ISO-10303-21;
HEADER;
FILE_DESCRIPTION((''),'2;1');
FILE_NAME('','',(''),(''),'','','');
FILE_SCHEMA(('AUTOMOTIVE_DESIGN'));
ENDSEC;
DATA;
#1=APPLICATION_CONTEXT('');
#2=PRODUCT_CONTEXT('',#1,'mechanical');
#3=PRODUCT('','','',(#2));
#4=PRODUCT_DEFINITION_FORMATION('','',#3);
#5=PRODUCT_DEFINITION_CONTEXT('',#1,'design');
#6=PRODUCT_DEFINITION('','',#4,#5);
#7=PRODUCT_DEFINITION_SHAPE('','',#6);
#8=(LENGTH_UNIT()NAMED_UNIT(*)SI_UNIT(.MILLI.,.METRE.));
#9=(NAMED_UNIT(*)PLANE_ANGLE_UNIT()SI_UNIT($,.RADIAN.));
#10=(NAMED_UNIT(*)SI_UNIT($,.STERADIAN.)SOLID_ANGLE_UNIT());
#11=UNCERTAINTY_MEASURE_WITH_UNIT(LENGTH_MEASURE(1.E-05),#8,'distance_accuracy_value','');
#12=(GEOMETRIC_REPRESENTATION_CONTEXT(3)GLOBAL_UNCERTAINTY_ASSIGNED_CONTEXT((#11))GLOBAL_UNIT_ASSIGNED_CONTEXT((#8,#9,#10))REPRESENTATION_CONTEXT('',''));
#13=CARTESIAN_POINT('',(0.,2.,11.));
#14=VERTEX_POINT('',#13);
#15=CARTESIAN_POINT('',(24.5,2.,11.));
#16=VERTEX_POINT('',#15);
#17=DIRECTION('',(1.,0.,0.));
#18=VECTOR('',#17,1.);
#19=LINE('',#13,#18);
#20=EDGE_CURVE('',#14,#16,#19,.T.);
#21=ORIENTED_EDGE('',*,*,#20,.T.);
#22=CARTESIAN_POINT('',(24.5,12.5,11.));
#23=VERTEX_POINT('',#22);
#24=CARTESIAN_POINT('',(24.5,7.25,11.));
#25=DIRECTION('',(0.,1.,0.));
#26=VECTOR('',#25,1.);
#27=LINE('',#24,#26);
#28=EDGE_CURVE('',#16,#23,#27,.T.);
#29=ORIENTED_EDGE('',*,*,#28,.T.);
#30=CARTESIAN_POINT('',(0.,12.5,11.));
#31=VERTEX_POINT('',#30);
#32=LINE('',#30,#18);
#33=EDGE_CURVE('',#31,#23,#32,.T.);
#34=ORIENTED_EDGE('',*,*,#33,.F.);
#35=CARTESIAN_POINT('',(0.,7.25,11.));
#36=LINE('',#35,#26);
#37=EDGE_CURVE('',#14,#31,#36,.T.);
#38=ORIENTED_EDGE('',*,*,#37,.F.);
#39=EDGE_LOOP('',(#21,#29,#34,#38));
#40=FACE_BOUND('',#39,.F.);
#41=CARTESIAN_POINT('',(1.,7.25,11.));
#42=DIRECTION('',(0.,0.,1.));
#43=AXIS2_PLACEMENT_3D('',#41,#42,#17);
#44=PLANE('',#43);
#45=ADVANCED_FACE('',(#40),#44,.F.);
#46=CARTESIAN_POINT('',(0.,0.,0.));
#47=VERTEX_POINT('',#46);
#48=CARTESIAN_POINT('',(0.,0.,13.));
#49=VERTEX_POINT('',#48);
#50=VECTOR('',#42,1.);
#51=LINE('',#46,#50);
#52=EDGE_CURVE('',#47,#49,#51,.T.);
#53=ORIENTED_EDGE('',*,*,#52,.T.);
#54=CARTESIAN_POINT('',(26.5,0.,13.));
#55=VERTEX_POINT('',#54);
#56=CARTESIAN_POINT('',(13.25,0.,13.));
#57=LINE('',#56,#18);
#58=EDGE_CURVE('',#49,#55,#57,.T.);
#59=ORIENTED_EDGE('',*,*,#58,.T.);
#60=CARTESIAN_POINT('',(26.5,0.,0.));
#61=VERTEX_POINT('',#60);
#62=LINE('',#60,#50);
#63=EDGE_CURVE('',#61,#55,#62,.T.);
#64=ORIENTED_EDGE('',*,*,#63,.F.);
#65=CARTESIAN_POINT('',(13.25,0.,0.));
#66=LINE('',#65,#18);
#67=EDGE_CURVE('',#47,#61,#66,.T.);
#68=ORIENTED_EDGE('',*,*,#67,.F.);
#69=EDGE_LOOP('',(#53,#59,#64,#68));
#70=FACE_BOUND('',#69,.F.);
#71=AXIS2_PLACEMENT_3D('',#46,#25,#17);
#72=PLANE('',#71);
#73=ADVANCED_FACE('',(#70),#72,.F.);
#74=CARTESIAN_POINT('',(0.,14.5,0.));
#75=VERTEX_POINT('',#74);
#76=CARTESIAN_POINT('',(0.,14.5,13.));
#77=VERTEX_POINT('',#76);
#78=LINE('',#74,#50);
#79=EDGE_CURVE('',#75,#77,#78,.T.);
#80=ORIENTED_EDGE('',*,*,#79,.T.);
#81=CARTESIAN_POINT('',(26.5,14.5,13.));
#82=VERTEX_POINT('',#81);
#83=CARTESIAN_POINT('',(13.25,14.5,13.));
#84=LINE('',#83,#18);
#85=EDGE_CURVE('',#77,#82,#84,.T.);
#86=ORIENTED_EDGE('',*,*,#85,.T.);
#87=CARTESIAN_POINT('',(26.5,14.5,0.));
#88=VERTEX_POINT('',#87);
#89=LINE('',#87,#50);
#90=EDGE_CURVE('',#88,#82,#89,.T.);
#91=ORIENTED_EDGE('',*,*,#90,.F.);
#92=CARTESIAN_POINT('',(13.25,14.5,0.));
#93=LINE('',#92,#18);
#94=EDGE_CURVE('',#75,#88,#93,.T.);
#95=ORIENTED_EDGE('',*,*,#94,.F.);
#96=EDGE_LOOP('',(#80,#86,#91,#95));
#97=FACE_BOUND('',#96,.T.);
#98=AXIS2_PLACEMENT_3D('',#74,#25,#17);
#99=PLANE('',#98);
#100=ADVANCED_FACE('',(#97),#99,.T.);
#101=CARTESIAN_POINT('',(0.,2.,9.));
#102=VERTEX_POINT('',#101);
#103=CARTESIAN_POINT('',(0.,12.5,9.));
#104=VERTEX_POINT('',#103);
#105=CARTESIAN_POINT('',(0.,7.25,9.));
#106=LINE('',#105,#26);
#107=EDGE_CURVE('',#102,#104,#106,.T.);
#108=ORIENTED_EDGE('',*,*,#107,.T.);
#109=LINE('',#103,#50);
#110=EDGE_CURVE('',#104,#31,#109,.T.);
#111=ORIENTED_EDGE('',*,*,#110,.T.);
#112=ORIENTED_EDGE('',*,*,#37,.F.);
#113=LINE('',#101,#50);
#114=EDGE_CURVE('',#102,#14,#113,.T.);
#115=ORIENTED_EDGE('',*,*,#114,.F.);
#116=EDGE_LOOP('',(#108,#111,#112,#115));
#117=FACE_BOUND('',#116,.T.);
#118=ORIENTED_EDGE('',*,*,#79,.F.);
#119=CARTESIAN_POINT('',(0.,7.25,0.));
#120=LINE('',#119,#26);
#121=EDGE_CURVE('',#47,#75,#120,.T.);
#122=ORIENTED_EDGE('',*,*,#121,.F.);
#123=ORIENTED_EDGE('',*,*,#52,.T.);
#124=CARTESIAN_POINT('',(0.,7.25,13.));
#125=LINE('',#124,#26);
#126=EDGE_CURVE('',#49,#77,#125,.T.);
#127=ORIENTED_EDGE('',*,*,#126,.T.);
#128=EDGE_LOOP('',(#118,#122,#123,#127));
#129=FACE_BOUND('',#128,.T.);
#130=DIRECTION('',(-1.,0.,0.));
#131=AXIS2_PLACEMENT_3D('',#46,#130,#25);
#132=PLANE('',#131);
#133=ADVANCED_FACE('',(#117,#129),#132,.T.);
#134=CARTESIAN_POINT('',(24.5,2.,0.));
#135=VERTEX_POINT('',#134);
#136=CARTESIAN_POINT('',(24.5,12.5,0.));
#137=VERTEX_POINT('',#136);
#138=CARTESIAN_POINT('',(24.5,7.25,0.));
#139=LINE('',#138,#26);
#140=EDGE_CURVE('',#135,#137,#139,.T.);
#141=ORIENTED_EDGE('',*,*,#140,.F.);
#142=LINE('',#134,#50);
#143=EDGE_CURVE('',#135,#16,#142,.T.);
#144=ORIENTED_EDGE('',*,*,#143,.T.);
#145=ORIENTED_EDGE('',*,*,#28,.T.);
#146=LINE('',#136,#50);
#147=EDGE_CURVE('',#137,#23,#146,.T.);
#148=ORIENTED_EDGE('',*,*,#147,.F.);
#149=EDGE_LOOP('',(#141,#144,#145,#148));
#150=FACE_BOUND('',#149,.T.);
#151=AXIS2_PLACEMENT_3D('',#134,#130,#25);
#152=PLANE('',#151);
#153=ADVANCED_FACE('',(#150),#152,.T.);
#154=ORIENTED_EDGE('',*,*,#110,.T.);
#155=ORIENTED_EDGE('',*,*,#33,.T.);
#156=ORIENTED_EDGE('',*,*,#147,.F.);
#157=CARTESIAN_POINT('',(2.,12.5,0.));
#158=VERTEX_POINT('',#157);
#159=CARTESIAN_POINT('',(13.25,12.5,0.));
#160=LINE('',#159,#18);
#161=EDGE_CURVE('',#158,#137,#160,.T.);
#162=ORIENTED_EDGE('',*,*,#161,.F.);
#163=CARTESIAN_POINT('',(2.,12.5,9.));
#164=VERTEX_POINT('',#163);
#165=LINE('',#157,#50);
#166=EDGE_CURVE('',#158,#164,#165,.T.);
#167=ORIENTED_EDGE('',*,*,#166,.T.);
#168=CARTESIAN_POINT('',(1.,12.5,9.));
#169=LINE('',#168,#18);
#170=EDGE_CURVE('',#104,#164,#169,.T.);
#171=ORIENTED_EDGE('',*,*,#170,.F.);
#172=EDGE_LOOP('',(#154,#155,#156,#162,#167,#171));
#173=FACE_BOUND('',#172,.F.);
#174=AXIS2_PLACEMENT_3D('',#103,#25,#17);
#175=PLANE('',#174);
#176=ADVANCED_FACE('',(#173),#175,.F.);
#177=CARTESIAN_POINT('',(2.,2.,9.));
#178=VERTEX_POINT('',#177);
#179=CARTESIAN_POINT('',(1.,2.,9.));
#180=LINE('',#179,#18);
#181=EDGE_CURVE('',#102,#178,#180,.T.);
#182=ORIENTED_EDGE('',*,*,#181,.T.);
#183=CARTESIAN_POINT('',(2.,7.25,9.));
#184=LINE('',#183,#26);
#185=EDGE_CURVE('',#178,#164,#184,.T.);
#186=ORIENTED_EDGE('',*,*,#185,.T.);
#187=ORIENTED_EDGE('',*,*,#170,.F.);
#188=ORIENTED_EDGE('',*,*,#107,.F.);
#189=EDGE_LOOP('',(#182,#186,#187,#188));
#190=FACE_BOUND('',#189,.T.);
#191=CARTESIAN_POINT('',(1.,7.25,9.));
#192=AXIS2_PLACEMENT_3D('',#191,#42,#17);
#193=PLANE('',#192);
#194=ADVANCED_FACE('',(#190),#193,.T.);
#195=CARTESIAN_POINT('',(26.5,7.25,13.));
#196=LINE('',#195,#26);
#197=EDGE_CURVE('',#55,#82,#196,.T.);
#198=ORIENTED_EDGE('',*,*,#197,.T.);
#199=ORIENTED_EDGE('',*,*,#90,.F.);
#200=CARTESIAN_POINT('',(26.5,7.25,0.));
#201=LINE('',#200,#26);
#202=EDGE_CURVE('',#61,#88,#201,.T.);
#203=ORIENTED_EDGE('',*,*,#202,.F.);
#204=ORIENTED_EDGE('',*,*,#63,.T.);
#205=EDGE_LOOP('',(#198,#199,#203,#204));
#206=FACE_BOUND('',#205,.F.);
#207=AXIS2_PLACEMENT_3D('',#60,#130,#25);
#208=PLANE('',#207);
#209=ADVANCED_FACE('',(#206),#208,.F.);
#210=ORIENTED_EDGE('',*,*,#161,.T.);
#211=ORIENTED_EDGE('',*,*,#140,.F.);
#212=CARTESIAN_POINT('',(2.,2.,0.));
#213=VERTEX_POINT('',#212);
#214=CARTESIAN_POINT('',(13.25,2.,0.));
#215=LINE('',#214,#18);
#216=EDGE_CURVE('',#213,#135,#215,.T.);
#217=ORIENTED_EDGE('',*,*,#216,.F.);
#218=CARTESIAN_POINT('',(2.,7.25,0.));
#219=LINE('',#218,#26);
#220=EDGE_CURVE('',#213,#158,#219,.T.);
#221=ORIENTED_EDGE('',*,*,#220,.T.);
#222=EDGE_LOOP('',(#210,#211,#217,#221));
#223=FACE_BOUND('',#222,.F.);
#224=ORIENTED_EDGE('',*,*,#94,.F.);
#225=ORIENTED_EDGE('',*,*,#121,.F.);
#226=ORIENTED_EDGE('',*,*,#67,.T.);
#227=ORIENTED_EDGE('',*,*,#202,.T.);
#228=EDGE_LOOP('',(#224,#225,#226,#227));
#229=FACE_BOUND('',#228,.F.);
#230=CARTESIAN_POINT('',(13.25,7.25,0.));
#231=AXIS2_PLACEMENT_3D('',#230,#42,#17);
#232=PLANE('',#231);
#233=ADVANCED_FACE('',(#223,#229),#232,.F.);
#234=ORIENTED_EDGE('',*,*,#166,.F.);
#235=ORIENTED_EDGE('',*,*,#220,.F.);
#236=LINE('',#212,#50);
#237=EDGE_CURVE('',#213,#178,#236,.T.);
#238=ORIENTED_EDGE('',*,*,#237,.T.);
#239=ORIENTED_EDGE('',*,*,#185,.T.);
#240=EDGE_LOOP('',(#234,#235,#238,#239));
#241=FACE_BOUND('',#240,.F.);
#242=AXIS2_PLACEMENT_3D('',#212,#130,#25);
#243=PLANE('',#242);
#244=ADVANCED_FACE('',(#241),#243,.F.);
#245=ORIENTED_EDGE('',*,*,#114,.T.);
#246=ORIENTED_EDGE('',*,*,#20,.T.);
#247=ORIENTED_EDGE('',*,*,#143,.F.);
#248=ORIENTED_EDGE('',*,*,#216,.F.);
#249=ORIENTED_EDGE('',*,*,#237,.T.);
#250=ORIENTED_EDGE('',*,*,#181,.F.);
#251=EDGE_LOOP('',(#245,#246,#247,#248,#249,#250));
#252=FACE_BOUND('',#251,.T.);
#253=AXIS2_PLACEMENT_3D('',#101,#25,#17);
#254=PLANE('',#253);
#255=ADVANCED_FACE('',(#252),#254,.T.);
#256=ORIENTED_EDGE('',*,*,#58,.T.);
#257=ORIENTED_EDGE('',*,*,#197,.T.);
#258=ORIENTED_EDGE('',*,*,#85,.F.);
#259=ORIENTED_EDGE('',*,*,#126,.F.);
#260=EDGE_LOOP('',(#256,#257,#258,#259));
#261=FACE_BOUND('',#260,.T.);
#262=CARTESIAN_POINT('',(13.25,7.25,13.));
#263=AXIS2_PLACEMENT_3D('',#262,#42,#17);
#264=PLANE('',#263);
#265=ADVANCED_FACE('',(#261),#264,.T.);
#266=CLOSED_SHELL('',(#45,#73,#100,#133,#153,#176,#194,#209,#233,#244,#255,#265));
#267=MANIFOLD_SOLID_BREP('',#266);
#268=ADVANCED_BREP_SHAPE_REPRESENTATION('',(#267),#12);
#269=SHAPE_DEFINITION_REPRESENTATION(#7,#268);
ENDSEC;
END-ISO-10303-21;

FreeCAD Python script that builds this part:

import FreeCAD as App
import Part
import Sketcher
from FreeCAD import Vector
Q = App.Units.Quantity


def add_polygon(sketch, points):
    """Adds a closed chain of lines whose ends are joined by coincident constraints."""
    first, n = sketch.GeometryCount, len(points)
    for a, b in zip(points, points[1:] + points[:1]):
        sketch.addGeometry(Part.LineSegment(App.Vector(*a, 0), App.Vector(*b, 0)), False)
    for i in range(n):
        sketch.addConstraint(Sketcher.Constraint("Coincident", first + i, 2, first + (i + 1) % n, 1))

doc = App.newDocument("Part")
params = doc.addObject("Spreadsheet::Sheet", "Params")
for row, (alias, value) in enumerate([
    ("sketch1_width", "2 mm"),
    ("sketch1_height", "10.5 mm"),
    ("pad1_length", "2 mm"),
    ("sketch2_width", "22.5 mm"),
    ("sketch2_height", "10.5 mm"),
    ("pad2_length", "11 mm"),
    ("sketch3_width", "26.5 mm"),
    ("sketch3_height", "14.5 mm"),
    ("pad3_length", "13 mm"),
], start=1):
    params.set(f"A{row}", alias)
    params.set(f"B{row}", "=" + value)
    params.setAlias(f"B{row}", alias)

body = doc.addObject("PartDesign::Body", "Body")

sketch1 = doc.addObject("Sketcher::SketchObject", "Sketch")
body.addObject(sketch1)
sketch1.AttachmentSupport = (doc.XY_Plane, [""])
sketch1.MapMode = "FlatFace"
sketch1.AttachmentOffset = App.Placement(Vector(0, 0, 9), App.Rotation())
add_polygon(sketch1, [(0, 12.5), (0, 2), (2, 2), (2, 12.5)])
sketch1.addConstraint([
    Sketcher.Constraint("Vertical", 0),
    Sketcher.Constraint("Horizontal", 1),
    Sketcher.Constraint("Vertical", 2),
    Sketcher.Constraint("Horizontal", 3),
    Sketcher.Constraint("PointOnObject", 0, 2, -2),
    Sketcher.Constraint("DistanceX", 1, 1, 1, 2, Q("2 mm")),
    Sketcher.Constraint("DistanceY", 0, 2, 0, 1, Q("10.5 mm")),
    Sketcher.Constraint("DistanceY", -1, 1, 0, 2, Q("2 mm")),
])
sketch1.setExpression("Constraints[9]", "Params.sketch1_width")
sketch1.setExpression("Constraints[10]", "Params.sketch1_height")
pad1 = doc.addObject("PartDesign::Pad", "Pad")
body.addObject(pad1)
pad1.Profile = sketch1
pad1.setExpression("Length", "Params.pad1_length")
body2 = doc.addObject("PartDesign::Body", "Body001")

sketch2 = doc.addObject("Sketcher::SketchObject", "Sketch001")
body2.addObject(sketch2)
sketch2.AttachmentSupport = (doc.getObject("XY_Plane001"), [""])
sketch2.MapMode = "FlatFace"
add_polygon(sketch2, [(2, 12), (2, 2), (24, 2), (24, 12)])
sketch2.addConstraint([
    Sketcher.Constraint("Vertical", 0),
    Sketcher.Constraint("Horizontal", 1),
    Sketcher.Constraint("Vertical", 2),
    Sketcher.Constraint("Horizontal", 3),
    Sketcher.Constraint("DistanceX", 1, 1, 1, 2, Q("22.5 mm")),
    Sketcher.Constraint("DistanceY", 0, 2, 0, 1, Q("10.5 mm")),
    Sketcher.Constraint("DistanceX", -1, 1, 0, 2, Q("2 mm")),
    Sketcher.Constraint("DistanceY", -1, 1, 0, 2, Q("2 mm")),
])
sketch2.setExpression("Constraints[8]", "Params.sketch2_width")
sketch2.setExpression("Constraints[9]", "Params.sketch2_height")
pad2 = doc.addObject("PartDesign::Pad", "Pad001")
body2.addObject(pad2)
pad2.Profile = sketch2
pad2.setExpression("Length", "Params.pad2_length")
body3 = doc.addObject("PartDesign::Body", "Body002")

sketch3 = doc.addObject("Sketcher::SketchObject", "Sketch002")
body3.addObject(sketch3)
sketch3.AttachmentSupport = (doc.getObject("XY_Plane002"), [""])
sketch3.MapMode = "FlatFace"
add_polygon(sketch3, [(0, 14), (0, 0), (26, 0), (26, 14)])
sketch3.addConstraint([
    Sketcher.Constraint("Vertical", 0),
    Sketcher.Constraint("Horizontal", 1),
    Sketcher.Constraint("Vertical", 2),
    Sketcher.Constraint("Horizontal", 3),
    Sketcher.Constraint("Coincident", 0, 2, -1, 1),
    Sketcher.Constraint("DistanceX", 1, 1, 1, 2, Q("26.5 mm")),
    Sketcher.Constraint("DistanceY", 0, 2, 0, 1, Q("14.5 mm")),
])
sketch3.setExpression("Constraints[9]", "Params.sketch3_width")
sketch3.setExpression("Constraints[10]", "Params.sketch3_height")
pad3 = doc.addObject("PartDesign::Pad", "Pad002")
body3.addObject(pad3)
pad3.Profile = sketch3
pad3.setExpression("Length", "Params.pad3_length")
doc.recompute()

boolean = doc.addObject("PartDesign::Boolean", "Boolean")
body3.addObject(boolean)
boolean.Type = "Cut"
boolean.addObjects([body2])
doc.recompute()

boolean2 = doc.addObject("PartDesign::Boolean", "Boolean001")
body3.addObject(boolean2)
boolean2.Type = "Cut"
boolean2.addObjects([body])

doc.recompute()
